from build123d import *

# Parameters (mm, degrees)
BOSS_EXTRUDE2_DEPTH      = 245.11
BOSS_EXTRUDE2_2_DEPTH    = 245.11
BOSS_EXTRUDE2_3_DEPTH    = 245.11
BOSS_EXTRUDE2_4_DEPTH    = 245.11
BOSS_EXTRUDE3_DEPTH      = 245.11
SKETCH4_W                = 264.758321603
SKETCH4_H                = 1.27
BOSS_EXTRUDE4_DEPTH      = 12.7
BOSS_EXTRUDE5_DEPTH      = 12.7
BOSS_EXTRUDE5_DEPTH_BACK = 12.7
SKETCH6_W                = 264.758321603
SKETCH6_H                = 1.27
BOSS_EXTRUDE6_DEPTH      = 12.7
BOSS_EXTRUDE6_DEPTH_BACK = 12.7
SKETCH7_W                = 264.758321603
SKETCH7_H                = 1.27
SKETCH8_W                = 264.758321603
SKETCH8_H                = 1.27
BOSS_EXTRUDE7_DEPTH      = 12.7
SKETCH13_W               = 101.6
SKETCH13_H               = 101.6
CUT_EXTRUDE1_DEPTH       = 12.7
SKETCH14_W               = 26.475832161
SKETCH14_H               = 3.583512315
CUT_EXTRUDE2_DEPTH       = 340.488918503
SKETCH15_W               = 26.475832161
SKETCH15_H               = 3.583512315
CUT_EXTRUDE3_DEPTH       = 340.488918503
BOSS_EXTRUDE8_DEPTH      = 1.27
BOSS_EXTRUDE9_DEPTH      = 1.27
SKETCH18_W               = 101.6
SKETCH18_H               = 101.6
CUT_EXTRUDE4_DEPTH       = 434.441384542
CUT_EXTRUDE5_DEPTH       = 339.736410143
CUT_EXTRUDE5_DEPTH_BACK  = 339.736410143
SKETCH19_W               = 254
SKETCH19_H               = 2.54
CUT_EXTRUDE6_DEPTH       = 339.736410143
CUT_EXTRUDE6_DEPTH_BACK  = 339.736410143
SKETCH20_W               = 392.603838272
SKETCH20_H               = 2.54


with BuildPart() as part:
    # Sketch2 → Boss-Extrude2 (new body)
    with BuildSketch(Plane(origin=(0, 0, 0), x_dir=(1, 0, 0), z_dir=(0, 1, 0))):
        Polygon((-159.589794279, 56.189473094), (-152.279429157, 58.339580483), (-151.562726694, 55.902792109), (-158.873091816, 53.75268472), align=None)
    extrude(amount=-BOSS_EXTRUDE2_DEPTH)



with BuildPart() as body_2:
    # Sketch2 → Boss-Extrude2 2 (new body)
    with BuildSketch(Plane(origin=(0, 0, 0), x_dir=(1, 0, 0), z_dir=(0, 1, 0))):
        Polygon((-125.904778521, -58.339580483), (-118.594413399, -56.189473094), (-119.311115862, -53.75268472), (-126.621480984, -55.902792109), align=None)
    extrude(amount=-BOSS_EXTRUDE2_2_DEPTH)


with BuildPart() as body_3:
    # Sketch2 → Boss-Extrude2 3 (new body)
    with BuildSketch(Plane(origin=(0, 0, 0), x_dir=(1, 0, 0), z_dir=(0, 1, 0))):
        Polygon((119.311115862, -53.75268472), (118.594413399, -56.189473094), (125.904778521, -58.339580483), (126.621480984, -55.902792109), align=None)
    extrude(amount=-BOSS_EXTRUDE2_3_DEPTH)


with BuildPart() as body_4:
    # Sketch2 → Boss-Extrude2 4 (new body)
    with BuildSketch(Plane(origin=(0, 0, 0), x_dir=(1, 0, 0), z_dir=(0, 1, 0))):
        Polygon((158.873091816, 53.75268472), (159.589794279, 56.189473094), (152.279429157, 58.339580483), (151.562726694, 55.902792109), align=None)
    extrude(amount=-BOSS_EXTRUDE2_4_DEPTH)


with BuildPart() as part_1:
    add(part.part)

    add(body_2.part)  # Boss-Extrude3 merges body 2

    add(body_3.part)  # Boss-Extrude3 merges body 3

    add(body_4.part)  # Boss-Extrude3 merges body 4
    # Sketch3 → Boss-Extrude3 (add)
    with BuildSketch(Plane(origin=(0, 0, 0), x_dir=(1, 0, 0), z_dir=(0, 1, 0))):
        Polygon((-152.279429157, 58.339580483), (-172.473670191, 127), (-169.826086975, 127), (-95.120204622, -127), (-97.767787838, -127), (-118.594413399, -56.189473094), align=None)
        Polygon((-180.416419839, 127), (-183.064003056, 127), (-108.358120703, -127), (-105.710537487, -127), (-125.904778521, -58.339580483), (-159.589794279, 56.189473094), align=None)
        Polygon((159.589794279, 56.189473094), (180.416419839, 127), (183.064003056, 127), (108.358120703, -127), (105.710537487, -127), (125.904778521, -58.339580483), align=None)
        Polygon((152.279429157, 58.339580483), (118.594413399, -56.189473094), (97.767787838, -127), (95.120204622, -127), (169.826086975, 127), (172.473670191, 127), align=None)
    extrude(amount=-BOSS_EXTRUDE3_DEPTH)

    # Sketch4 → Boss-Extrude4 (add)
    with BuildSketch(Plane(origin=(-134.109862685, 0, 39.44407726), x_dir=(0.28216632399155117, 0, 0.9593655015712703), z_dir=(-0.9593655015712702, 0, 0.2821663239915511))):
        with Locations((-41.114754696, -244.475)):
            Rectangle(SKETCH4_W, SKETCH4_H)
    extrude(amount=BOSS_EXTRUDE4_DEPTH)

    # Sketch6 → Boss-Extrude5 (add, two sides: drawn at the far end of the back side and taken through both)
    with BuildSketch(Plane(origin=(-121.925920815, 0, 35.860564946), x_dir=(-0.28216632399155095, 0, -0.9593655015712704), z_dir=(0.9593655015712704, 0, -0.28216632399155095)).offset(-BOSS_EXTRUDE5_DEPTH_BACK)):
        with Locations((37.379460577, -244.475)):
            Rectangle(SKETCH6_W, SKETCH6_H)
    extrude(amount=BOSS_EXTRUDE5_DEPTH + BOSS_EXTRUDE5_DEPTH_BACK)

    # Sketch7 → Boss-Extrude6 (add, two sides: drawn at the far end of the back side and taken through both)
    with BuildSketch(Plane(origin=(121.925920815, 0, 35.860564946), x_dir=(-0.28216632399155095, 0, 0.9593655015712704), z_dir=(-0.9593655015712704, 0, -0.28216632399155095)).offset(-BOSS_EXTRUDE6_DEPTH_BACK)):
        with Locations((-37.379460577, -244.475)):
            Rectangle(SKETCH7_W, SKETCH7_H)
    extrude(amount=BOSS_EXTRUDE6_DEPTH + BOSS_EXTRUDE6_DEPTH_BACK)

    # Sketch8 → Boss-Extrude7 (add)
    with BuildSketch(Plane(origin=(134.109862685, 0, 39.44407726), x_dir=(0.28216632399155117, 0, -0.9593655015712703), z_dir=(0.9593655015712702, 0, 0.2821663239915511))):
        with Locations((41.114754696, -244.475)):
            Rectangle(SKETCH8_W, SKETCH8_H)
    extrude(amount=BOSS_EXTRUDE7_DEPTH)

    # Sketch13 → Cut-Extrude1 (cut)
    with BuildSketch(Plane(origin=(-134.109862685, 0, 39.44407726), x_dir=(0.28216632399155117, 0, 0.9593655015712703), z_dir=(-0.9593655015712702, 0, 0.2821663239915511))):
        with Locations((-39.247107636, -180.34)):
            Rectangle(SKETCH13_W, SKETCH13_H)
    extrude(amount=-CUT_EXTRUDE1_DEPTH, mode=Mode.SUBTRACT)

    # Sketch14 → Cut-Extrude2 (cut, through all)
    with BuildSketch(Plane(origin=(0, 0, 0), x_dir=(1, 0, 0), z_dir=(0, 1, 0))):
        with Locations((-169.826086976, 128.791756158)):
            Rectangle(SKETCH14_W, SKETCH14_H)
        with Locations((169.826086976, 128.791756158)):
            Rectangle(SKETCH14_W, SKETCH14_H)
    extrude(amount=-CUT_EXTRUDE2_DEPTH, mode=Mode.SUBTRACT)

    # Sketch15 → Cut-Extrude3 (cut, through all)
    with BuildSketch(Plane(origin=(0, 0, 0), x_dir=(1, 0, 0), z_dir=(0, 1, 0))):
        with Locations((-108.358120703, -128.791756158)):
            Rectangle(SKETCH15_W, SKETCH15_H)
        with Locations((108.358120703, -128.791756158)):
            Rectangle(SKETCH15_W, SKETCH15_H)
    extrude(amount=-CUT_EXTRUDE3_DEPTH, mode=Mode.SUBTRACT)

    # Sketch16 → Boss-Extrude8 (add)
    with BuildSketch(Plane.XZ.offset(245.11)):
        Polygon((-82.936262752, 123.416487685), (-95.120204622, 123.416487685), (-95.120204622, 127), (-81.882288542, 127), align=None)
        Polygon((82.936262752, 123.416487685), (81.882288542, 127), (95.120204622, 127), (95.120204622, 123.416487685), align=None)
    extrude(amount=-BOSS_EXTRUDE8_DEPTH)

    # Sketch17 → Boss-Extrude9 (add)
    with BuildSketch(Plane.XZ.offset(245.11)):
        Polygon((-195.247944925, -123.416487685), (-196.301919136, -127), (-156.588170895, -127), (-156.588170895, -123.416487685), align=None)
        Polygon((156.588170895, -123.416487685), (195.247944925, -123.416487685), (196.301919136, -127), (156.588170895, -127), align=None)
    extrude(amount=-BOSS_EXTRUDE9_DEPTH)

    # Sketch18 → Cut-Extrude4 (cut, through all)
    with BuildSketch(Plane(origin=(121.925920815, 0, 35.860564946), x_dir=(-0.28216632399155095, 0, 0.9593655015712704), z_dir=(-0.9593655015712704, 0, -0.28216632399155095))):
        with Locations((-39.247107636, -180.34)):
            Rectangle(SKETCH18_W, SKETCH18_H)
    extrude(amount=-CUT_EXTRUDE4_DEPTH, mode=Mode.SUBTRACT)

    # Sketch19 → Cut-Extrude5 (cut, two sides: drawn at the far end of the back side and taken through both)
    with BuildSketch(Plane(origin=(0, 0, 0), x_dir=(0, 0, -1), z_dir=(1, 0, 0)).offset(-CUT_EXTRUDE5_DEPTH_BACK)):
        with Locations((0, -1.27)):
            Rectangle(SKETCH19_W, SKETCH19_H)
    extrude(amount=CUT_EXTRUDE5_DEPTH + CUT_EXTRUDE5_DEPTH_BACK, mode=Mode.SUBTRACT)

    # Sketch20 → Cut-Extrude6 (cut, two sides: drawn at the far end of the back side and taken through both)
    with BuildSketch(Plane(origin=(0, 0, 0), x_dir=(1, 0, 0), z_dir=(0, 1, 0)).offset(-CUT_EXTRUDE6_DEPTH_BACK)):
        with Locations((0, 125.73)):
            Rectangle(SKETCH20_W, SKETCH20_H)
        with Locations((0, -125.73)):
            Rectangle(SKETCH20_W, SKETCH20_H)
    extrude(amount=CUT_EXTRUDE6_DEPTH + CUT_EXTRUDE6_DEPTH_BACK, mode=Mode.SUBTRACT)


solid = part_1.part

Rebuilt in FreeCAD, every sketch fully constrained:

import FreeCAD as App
import Part
import Sketcher
from FreeCAD import Vector
Q = App.Units.Quantity


def add_polygon(sketch, points):
    """Adds a closed chain of lines whose ends are joined by coincident constraints."""
    first, n = sketch.GeometryCount, len(points)
    for a, b in zip(points, points[1:] + points[:1]):
        sketch.addGeometry(Part.LineSegment(App.Vector(*a, 0), App.Vector(*b, 0)), False)
    for i in range(n):
        sketch.addConstraint(Sketcher.Constraint("Coincident", first + i, 2, first + (i + 1) % n, 1))

doc = App.newDocument("Part")
body = doc.addObject("PartDesign::Body", "Body")

# Sketch on XZ plane
sketch1 = doc.addObject("Sketcher::SketchObject", "Sketch")
body.addObject(sketch1)
sketch1.AttachmentSupport = (doc.XZ_Plane, [""])
sketch1.MapMode = "FlatFace"
add_polygon(sketch1, [(-152.279429, -58.33958), (-159.589794, -56.189473), (-158.873092, -53.752685), (-151.562727, -55.902792)])  # lines 0-3
sketch1.addConstraint(Sketcher.Constraint("Perpendicular", 0, 1))
sketch1.addConstraint(Sketcher.Constraint("Perpendicular", 1, 2))
sketch1.addConstraint(Sketcher.Constraint("Perpendicular", 2, 3))
sketch1.addConstraint(Sketcher.Constraint("Distance", 0, Q("0.3 in")))
sketch1.addConstraint(Sketcher.Constraint("Distance", 1, Q("0.1 in")))
sketch1.addConstraint(Sketcher.Constraint("DistanceX", 1, 2, -1, 1, Q("158.873092 mm")))
sketch1.addConstraint(Sketcher.Constraint("DistanceX", 3, 2, -1, 1, Q("152.279429 mm")))
sketch1.addConstraint(Sketcher.Constraint("DistanceY", 3, 2, -1, 1, Q("58.33958 mm")))
pad1 = doc.addObject("PartDesign::Pad", "Pad")
body.addObject(pad1)
pad1.Profile = sketch1
pad1.Length = Q("9.65 in")
body2 = doc.addObject("PartDesign::Body", "Body001")

# Sketch on XZ plane
sketch2 = doc.addObject("Sketcher::SketchObject", "Sketch001")
body2.addObject(sketch2)
sketch2.AttachmentSupport = (doc.getObject("XZ_Plane001"), [""])
sketch2.MapMode = "FlatFace"
add_polygon(sketch2, [(-125.904779, 58.33958), (-118.594413, 56.189473), (-119.311116, 53.752685), (-126.621481, 55.902792)])  # lines 0-3
sketch2.addConstraint(Sketcher.Constraint("Perpendicular", 0, 1))
sketch2.addConstraint(Sketcher.Constraint("Perpendicular", 1, 2))
sketch2.addConstraint(Sketcher.Constraint("Perpendicular", 2, 3))
sketch2.addConstraint(Sketcher.Constraint("Distance", 0, Q("0.3 in")))
sketch2.addConstraint(Sketcher.Constraint("Distance", 1, Q("0.1 in")))
sketch2.addConstraint(Sketcher.Constraint("DistanceX", 2, 2, -1, 1, Q("126.621481 mm")))
sketch2.addConstraint(Sketcher.Constraint("DistanceX", 3, 2, -1, 1, Q("125.904779 mm")))
sketch2.addConstraint(Sketcher.Constraint("DistanceY", -1, 1, 3, 2, Q("58.33958 mm")))
pad2 = doc.addObject("PartDesign::Pad", "Pad001")
body2.addObject(pad2)
pad2.Profile = sketch2
pad2.Length = Q("9.65 in")
body3 = doc.addObject("PartDesign::Body", "Body002")

# Sketch on XZ plane
sketch3 = doc.addObject("Sketcher::SketchObject", "Sketch002")
body3.addObject(sketch3)
sketch3.AttachmentSupport = (doc.getObject("XZ_Plane002"), [""])
sketch3.MapMode = "FlatFace"
add_polygon(sketch3, [(119.311116, 53.752685), (118.594413, 56.189473), (125.904779, 58.33958), (126.621481, 55.902792)])  # lines 0-3
sketch3.addConstraint(Sketcher.Constraint("Perpendicular", 0, 1))
sketch3.addConstraint(Sketcher.Constraint("Perpendicular", 1, 2))
sketch3.addConstraint(Sketcher.Constraint("Perpendicular", 2, 3))
sketch3.addConstraint(Sketcher.Constraint("Distance", 0, Q("0.1 in")))
sketch3.addConstraint(Sketcher.Constraint("Distance", 1, Q("0.3 in")))
sketch3.addConstraint(Sketcher.Constraint("DistanceX", -1, 1, 1, 2, Q("125.904779 mm")))
sketch3.addConstraint(Sketcher.Constraint("DistanceY", -1, 1, 1, 2, Q("58.33958 mm")))
sketch3.addConstraint(Sketcher.Constraint("DistanceX", -1, 1, 2, 2, Q("126.621481 mm")))
pad3 = doc.addObject("PartDesign::Pad", "Pad002")
body3.addObject(pad3)
pad3.Profile = sketch3
pad3.Length = Q("9.65 in")
body4 = doc.addObject("PartDesign::Body", "Body003")

# Sketch on XZ plane
sketch4 = doc.addObject("Sketcher::SketchObject", "Sketch003")
body4.addObject(sketch4)
sketch4.AttachmentSupport = (doc.getObject("XZ_Plane003"), [""])
sketch4.MapMode = "FlatFace"
add_polygon(sketch4, [(158.873092, -53.752685), (159.589794, -56.189473), (152.279429, -58.33958), (151.562727, -55.902792)])  # lines 0-3
sketch4.addConstraint(Sketcher.Constraint("Perpendicular", 0, 1))
sketch4.addConstraint(Sketcher.Constraint("Perpendicular", 1, 2))
sketch4.addConstraint(Sketcher.Constraint("Perpendicular", 2, 3))
sketch4.addConstraint(Sketcher.Constraint("Distance", 0, Q("0.1 in")))
sketch4.addConstraint(Sketcher.Constraint("Distance", 1, Q("0.3 in")))
sketch4.addConstraint(Sketcher.Constraint("DistanceX", -1, 1, 1, 2, Q("152.279429 mm")))
sketch4.addConstraint(Sketcher.Constraint("DistanceY", 1, 2, -1, 1, Q("58.33958 mm")))
sketch4.addConstraint(Sketcher.Constraint("DistanceX", -1, 1, 3, 2, Q("158.873092 mm")))
pad4 = doc.addObject("PartDesign::Pad", "Pad003")
body4.addObject(pad4)
pad4.Profile = sketch4
pad4.Length = Q("9.65 in")
body.AllowCompound = True
doc.recompute()

boolean = doc.addObject("PartDesign::Boolean", "Boolean")
body.addObject(boolean)
boolean.Type = "Fuse"
boolean.addObjects([body2])
doc.recompute()

boolean2 = doc.addObject("PartDesign::Boolean", "Boolean001")
body.addObject(boolean2)
boolean2.Type = "Fuse"
boolean2.addObjects([body3])
doc.recompute()

boolean3 = doc.addObject("PartDesign::Boolean", "Boolean002")
body.addObject(boolean3)
boolean3.Type = "Fuse"
boolean3.addObjects([body4])

# Sketch on XZ plane
sketch5 = doc.addObject("Sketcher::SketchObject", "Sketch004")
body.addObject(sketch5)
sketch5.AttachmentSupport = (doc.XZ_Plane, [""])
sketch5.MapMode = "FlatFace"
add_polygon(sketch5, [(-172.47367, -127), (-152.279429, -58.33958), (-118.594413, 56.189473), (-97.767788, 127), (-95.120205, 127), (-169.826087, -127)])  # lines 0-5
add_polygon(sketch5, [(-180.41642, -127), (-183.064003, -127), (-108.358121, 127), (-105.710537, 127), (-125.904779, 58.33958), (-159.589794, -56.189473)])  # lines 6-11
add_polygon(sketch5, [(180.41642, -127), (159.589794, -56.189473), (125.904779, 58.33958), (105.710537, 127), (108.358121, 127), (183.064003, -127)])  # lines 12-17
add_polygon(sketch5, [(118.594413, 56.189473), (152.279429, -58.33958), (172.47367, -127), (169.826087, -127), (95.120205, 127), (97.767788, 127)])  # lines 18-23
sketch5.addConstraint(Sketcher.Constraint("Horizontal", 3))
sketch5.addConstraint(Sketcher.Constraint("Horizontal", 5))
sketch5.addConstraint(Sketcher.Constraint("Horizontal", 6))
sketch5.addConstraint(Sketcher.Constraint("Horizontal", 8))
sketch5.addConstraint(Sketcher.Constraint("Horizontal", 15))
sketch5.addConstraint(Sketcher.Constraint("Horizontal", 17))
sketch5.addConstraint(Sketcher.Constraint("Horizontal", 20))
sketch5.addConstraint(Sketcher.Constraint("Horizontal", 22))
sketch5.addConstraint(Sketcher.Constraint("Symmetric", 10, 2, 12, 2, -2))
sketch5.addConstraint(Sketcher.Constraint("Symmetric", 9, 2, 13, 2, -2))
sketch5.addConstraint(Sketcher.Constraint("Symmetric", 8, 2, 14, 2, -2))
sketch5.addConstraint(Sketcher.Constraint("Symmetric", 6, 2, 16, 2, -2))
sketch5.addConstraint(Sketcher.Constraint("Symmetric", 0, 2, 18, 2, -2))
sketch5.addConstraint(Sketcher.Constraint("Symmetric", 5, 2, 19, 2, -2))
sketch5.addConstraint(Sketcher.Constraint("Symmetric", 3, 2, 21, 2, -2))
sketch5.addConstraint(Sketcher.Constraint("Symmetric", 1, 2, 23, 2, -2))
sketch5.addConstraint(Sketcher.Constraint("Parallel", 0, 1))
sketch5.addConstraint(Sketcher.Constraint("Parallel", 1, 2))
sketch5.addConstraint(Sketcher.Constraint("Parallel", 2, 4))
sketch5.addConstraint(Sketcher.Constraint("Parallel", 4, 7))
sketch5.addConstraint(Sketcher.Constraint("Parallel", 7, 9))
sketch5.addConstraint(Sketcher.Constraint("Parallel", 9, 10))
sketch5.addConstraint(Sketcher.Constraint("Parallel", 10, 11))
sketch5.addConstraint(Sketcher.Constraint("Parallel", 12, 13))
sketch5.addConstraint(Sketcher.Constraint("Parallel", 14, 16))
sketch5.addConstraint(Sketcher.Constraint("Parallel", 19, 21))
sketch5.addConstraint(Sketcher.Constraint("Parallel", 21, 23))
sketch5.addConstraint(Sketcher.Constraint("Horizontal", 5, 2, 6, 2))
sketch5.addConstraint(Sketcher.Constraint("Horizontal", 3, 2, 7, 2))
sketch5.addConstraint(Sketcher.Constraint("Equal", 5, 6))
sketch5.addConstraint(Sketcher.Constraint("Equal", 0, 9))
sketch5.addConstraint(Sketcher.Constraint("Equal", 1, 10))
sketch5.addConstraint(Sketcher.Constraint("DistanceY", -1, 1, 2, 2, Q("5 in")))
sketch5.addConstraint(Sketcher.Constraint("DistanceY", 4, 2, -1, 1, Q("5 in")))
sketch5.addConstraint(Sketcher.Constraint("Distance", 1, Q("4.7 in")))
sketch5.addConstraint(Sketcher.Constraint("DistanceX", 4, 2, 2, 2, Q("72.058299 mm")))
sketch5.addConstraint(Sketcher.Constraint("DistanceX", 3, 2, 12, 2, Q("254.709999 mm")))
sketch5.addConstraint(Sketcher.Constraint("DistanceX", 7, 2, 13, 2, Q("234.262899 mm")))
sketch5.addConstraint(Sketcher.Constraint("Distance", 2, Q("73.809749 mm")))
sketch5.addConstraint(Sketcher.Constraint("Distance", 4, Q("264.758322 mm")))
pad5 = doc.addObject("PartDesign::Pad", "Pad004")
body.addObject(pad5)
pad5.Profile = sketch5
pad5.Length = Q("9.65 in")

# Sketch on an angled plane
sketch6 = doc.addObject("Sketcher::SketchObject", "Sketch005")
body.addObject(sketch6)
sketch6.Placement = App.Placement(Vector(-134.109863, 0, 39.444077), App.Rotation(Vector(0.282166324, 0, 0.959365502), Vector(0, 1.000000001, 0), Vector(-0.959365502, 0, 0.282166324), "ZXY"))
add_polygon(sketch6, [(-173.493916, -243.84), (-173.493916, -245.11), (91.264406, -245.11), (91.264406, -243.84)])  # lines 0-3
sketch6.addConstraint(Sketcher.Constraint("Vertical", 0))
sketch6.addConstraint(Sketcher.Constraint("Horizontal", 1))
sketch6.addConstraint(Sketcher.Constraint("Vertical", 2))
sketch6.addConstraint(Sketcher.Constraint("Horizontal", 3))
sketch6.addConstraint(Sketcher.Constraint("DistanceY", 0, 2, 0, 1, Q("0.05 in")))
sketch6.addConstraint(Sketcher.Constraint("DistanceY", 2, 2, -1, 1, Q("9.6 in")))
sketch6.addConstraint(Sketcher.Constraint("DistanceX", 1, 1, 1, 2, Q("264.758322 mm")))
sketch6.addConstraint(Sketcher.Constraint("DistanceX", 0, 2, -1, 1, Q("173.493916 mm")))
pad6 = doc.addObject("PartDesign::Pad", "Pad005")
body.addObject(pad6)
pad6.Profile = sketch6
pad6.Length = Q("0.5 in")

# Sketch on an angled plane
sketch7 = doc.addObject("Sketcher::SketchObject", "Sketch006")
body.addObject(sketch7)
sketch7.Placement = App.Placement(Vector(-121.925921, 0, 35.860565), App.Rotation(Vector(-0.282166324, 0, -0.959365502), Vector(0, 1.000000001, 0), Vector(0.959365502, 0, -0.282166324), "ZXY"))
add_polygon(sketch7, [(-94.9997, -243.84), (-94.9997, -245.11), (169.758622, -245.11), (169.758622, -243.84)])  # lines 0-3
sketch7.addConstraint(Sketcher.Constraint("Vertical", 0))
sketch7.addConstraint(Sketcher.Constraint("Horizontal", 1))
sketch7.addConstraint(Sketcher.Constraint("Vertical", 2))
sketch7.addConstraint(Sketcher.Constraint("Horizontal", 3))
sketch7.addConstraint(Sketcher.Constraint("DistanceY", 0, 2, 0, 1, Q("0.05 in")))
sketch7.addConstraint(Sketcher.Constraint("DistanceY", 2, 2, -1, 1, Q("9.6 in")))
sketch7.addConstraint(Sketcher.Constraint("DistanceX", 1, 1, 1, 2, Q("264.758322 mm")))
sketch7.addConstraint(Sketcher.Constraint("DistanceX", 0, 2, -1, 1, Q("94.9997 mm")))
pad7 = doc.addObject("PartDesign::Pad", "Pad006")
body.addObject(pad7)
pad7.Profile = sketch7
pad7.Type = "TwoLengths"
pad7.Length = Q("0.5 in")
pad7.Length2 = Q("0.5 in")

# Sketch on an angled plane
sketch8 = doc.addObject("Sketcher::SketchObject", "Sketch007")
body.addObject(sketch8)
sketch8.Placement = App.Placement(Vector(121.925921, 0, 35.860565), App.Rotation(Vector(-0.282166324, 0, 0.959365502), Vector(0, 1.000000001, 0), Vector(-0.959365502, 0, -0.282166324), "ZXY"))
add_polygon(sketch8, [(-169.758622, -243.84), (-169.758622, -245.11), (94.9997, -245.11), (94.9997, -243.84)])  # lines 0-3
sketch8.addConstraint(Sketcher.Constraint("Vertical", 0))
sketch8.addConstraint(Sketcher.Constraint("Horizontal", 1))
sketch8.addConstraint(Sketcher.Constraint("Vertical", 2))
sketch8.addConstraint(Sketcher.Constraint("Horizontal", 3))
sketch8.addConstraint(Sketcher.Constraint("DistanceY", 0, 2, 0, 1, Q("0.05 in")))
sketch8.addConstraint(Sketcher.Constraint("DistanceY", 2, 2, -1, 1, Q("9.6 in")))
sketch8.addConstraint(Sketcher.Constraint("DistanceX", 1, 1, 1, 2, Q("264.758322 mm")))
sketch8.addConstraint(Sketcher.Constraint("DistanceX", -1, 1, 1, 2, Q("94.9997 mm")))
pad8 = doc.addObject("PartDesign::Pad", "Pad007")
body.addObject(pad8)
pad8.Profile = sketch8
pad8.Type = "TwoLengths"
pad8.Length = Q("0.5 in")
pad8.Length2 = Q("0.5 in")

# Sketch on an angled plane
sketch9 = doc.addObject("Sketcher::SketchObject", "Sketch008")
body.addObject(sketch9)
sketch9.Placement = App.Placement(Vector(134.109863, 0, 39.444077), App.Rotation(Vector(0.282166324, 0, -0.959365502), Vector(0, 1.000000001, 0), Vector(0.959365502, 0, 0.282166324), "ZXY"))
add_polygon(sketch9, [(-91.264406, -243.84), (-91.264406, -245.11), (173.493916, -245.11), (173.493916, -243.84)])  # lines 0-3
sketch9.addConstraint(Sketcher.Constraint("Vertical", 0))
sketch9.addConstraint(Sketcher.Constraint("Horizontal", 1))
sketch9.addConstraint(Sketcher.Constraint("Vertical", 2))
sketch9.addConstraint(Sketcher.Constraint("Horizontal", 3))
sketch9.addConstraint(Sketcher.Constraint("DistanceY", 0, 2, 0, 1, Q("0.05 in")))
sketch9.addConstraint(Sketcher.Constraint("DistanceY", 2, 2, -1, 1, Q("9.6 in")))
sketch9.addConstraint(Sketcher.Constraint("DistanceX", 1, 1, 1, 2, Q("264.758322 mm")))
sketch9.addConstraint(Sketcher.Constraint("DistanceX", 0, 2, -1, 1, Q("91.264406 mm")))
pad9 = doc.addObject("PartDesign::Pad", "Pad008")
body.addObject(pad9)
pad9.Profile = sketch9
pad9.Length = Q("0.5 in")

# Sketch on an angled plane
sketch10 = doc.addObject("Sketcher::SketchObject", "Sketch009")
body.addObject(sketch10)
sketch10.Placement = App.Placement(Vector(-134.109863, 0, 39.444077), App.Rotation(Vector(0.282166324, 0, 0.959365502), Vector(0, 1.000000001, 0), Vector(-0.959365502, 0, 0.282166324), "ZXY"))
add_polygon(sketch10, [(-90.047108, -129.54), (-90.047108, -231.14), (11.552892, -231.14), (11.552892, -129.54)])  # lines 0-3
sketch10.addConstraint(Sketcher.Constraint("Vertical", 0))
sketch10.addConstraint(Sketcher.Constraint("Horizontal", 1))
sketch10.addConstraint(Sketcher.Constraint("Vertical", 2))
sketch10.addConstraint(Sketcher.Constraint("Horizontal", 3))
sketch10.addConstraint(Sketcher.Constraint("Equal", 3, 0))
sketch10.addConstraint(Sketcher.Constraint("DistanceX", 1, 1, 1, 2, Q("4 in")))
sketch10.addConstraint(Sketcher.Constraint("DistanceY", 0, 2, -1, 1, Q("9.1 in")))
sketch10.addConstraint(Sketcher.Constraint("DistanceX", 0, 2, -1, 1, Q("90.047108 mm")))
pocket1 = doc.addObject("PartDesign::Pocket", "Pocket")
body.addObject(pocket1)
pocket1.Profile = sketch10
pocket1.Length = Q("0.5 in")

# Sketch on XZ plane
sketch11 = doc.addObject("Sketcher::SketchObject", "Sketch010")
body.addObject(sketch11)
sketch11.AttachmentSupport = (doc.XZ_Plane, [""])
sketch11.MapMode = "FlatFace"
add_polygon(sketch11, [(-183.064003, -130.583512), (-183.064003, -127), (-156.588171, -127), (-156.588171, -130.583512)])  # lines 0-3
add_polygon(sketch11, [(156.588171, -130.583512), (156.588171, -127), (183.064003, -127), (183.064003, -130.583512)])  # lines 4-7
sketch11.addConstraint(Sketcher.Constraint("Vertical", 0))
sketch11.addConstraint(Sketcher.Constraint("Horizontal", 1))
sketch11.addConstraint(Sketcher.Constraint("Vertical", 2))
sketch11.addConstraint(Sketcher.Constraint("Horizontal", 3))
sketch11.addConstraint(Sketcher.Constraint("Vertical", 4))
sketch11.addConstraint(Sketcher.Constraint("Horizontal", 5))
sketch11.addConstraint(Sketcher.Constraint("Vertical", 6))
sketch11.addConstraint(Sketcher.Constraint("Horizontal", 7))
sketch11.addConstraint(Sketcher.Constraint("Symmetric", 1, 2, 4, 2, -2))
sketch11.addConstraint(Sketcher.Constraint("Symmetric", 3, 2, 6, 2, -2))
sketch11.addConstraint(Sketcher.Constraint("DistanceY", 0, 2, -1, 1, Q("5 in")))
sketch11.addConstraint(Sketcher.Constraint("DistanceX", 1, 1, 1, 2, Q("26.475832 mm")))
sketch11.addConstraint(Sketcher.Constraint("DistanceY", 0, 1, 0, 2, Q("3.583512 mm")))
sketch11.addConstraint(Sketcher.Constraint("DistanceX", 1, 2, -1, 1, Q("156.588171 mm")))
pocket2 = doc.addObject("PartDesign::Pocket", "Pocket001")
body.addObject(pocket2)
pocket2.Profile = sketch11
pocket2.Type = "ThroughAll"
pocket2.Reversed = True

# Sketch on XZ plane
sketch12 = doc.addObject("Sketcher::SketchObject", "Sketch011")
body.addObject(sketch12)
sketch12.AttachmentSupport = (doc.XZ_Plane, [""])
sketch12.MapMode = "FlatFace"
add_polygon(sketch12, [(-121.596037, 127), (-121.596037, 130.583512), (-95.120205, 130.583512), (-95.120205, 127)])  # lines 0-3
add_polygon(sketch12, [(95.120205, 127), (95.120205, 130.583512), (121.596037, 130.583512), (121.596037, 127)])  # lines 4-7
sketch12.addConstraint(Sketcher.Constraint("Vertical", 0))
sketch12.addConstraint(Sketcher.Constraint("Horizontal", 1))
sketch12.addConstraint(Sketcher.Constraint("Vertical", 2))
sketch12.addConstraint(Sketcher.Constraint("Horizontal", 3))
sketch12.addConstraint(Sketcher.Constraint("Vertical", 4))
sketch12.addConstraint(Sketcher.Constraint("Horizontal", 5))
sketch12.addConstraint(Sketcher.Constraint("Vertical", 6))
sketch12.addConstraint(Sketcher.Constraint("Horizontal", 7))
sketch12.addConstraint(Sketcher.Constraint("Symmetric", 1, 2, 4, 2, -2))
sketch12.addConstraint(Sketcher.Constraint("Symmetric", 3, 2, 6, 2, -2))
sketch12.addConstraint(Sketcher.Constraint("DistanceY", -1, 1, 2, 2, Q("5 in")))
sketch12.addConstraint(Sketcher.Constraint("DistanceX", 1, 1, 1, 2, Q("26.475832 mm")))
sketch12.addConstraint(Sketcher.Constraint("DistanceY", 0, 1, 0, 2, Q("3.583512 mm")))
sketch12.addConstraint(Sketcher.Constraint("DistanceX", 1, 2, 4, 2, Q("190.240409 mm")))
pocket3 = doc.addObject("PartDesign::Pocket", "Pocket002")
body.addObject(pocket3)
pocket3.Profile = sketch12
pocket3.Type = "ThroughAll"
pocket3.Reversed = True

# Sketch on XZ plane
sketch13 = doc.addObject("Sketcher::SketchObject", "Sketch012")
body.addObject(sketch13)
sketch13.AttachmentSupport = (doc.XZ_Plane, [""])
sketch13.MapMode = "FlatFace"
sketch13.AttachmentOffset = App.Placement(Vector(0, 0, 9.65 * 25.4), App.Rotation())
add_polygon(sketch13, [(-95.120205, 123.416488), (-82.936263, 123.416488), (-81.882289, 127), (-95.120205, 127)])  # lines 0-3
add_polygon(sketch13, [(81.882289, 127), (82.936263, 123.416488), (95.120205, 123.416488), (95.120205, 127)])  # lines 4-7
sketch13.addConstraint(Sketcher.Constraint("Horizontal", 0))
sketch13.addConstraint(Sketcher.Constraint("Horizontal", 2))
sketch13.addConstraint(Sketcher.Constraint("Vertical", 3))
sketch13.addConstraint(Sketcher.Constraint("Horizontal", 5))
sketch13.addConstraint(Sketcher.Constraint("Vertical", 6))
sketch13.addConstraint(Sketcher.Constraint("Horizontal", 7))
sketch13.addConstraint(Sketcher.Constraint("Symmetric", 0, 2, 4, 2, -2))
sketch13.addConstraint(Sketcher.Constraint("Symmetric", 2, 2, 6, 2, -2))
sketch13.addConstraint(Sketcher.Constraint("Equal", 2, 7))
sketch13.addConstraint(Sketcher.Constraint("DistanceY", -1, 1, 1, 2, Q("5 in")))
sketch13.addConstraint(Sketcher.Constraint("DistanceX", 0, 1, 0, 2, Q("12.183942 mm")))
sketch13.addConstraint(Sketcher.Constraint("DistanceX", 2, 2, 2, 1, Q("13.237916 mm")))
sketch13.addConstraint(Sketcher.Constraint("DistanceY", 3, 2, 3, 1, Q("3.583512 mm")))
sketch13.addConstraint(Sketcher.Constraint("DistanceX", 1, 2, -1, 1, Q("81.882289 mm")))
pad10 = doc.addObject("PartDesign::Pad", "Pad009")
body.addObject(pad10)
pad10.Profile = sketch13
pad10.Length = Q("0.05 in")
pad10.Reversed = True

# Sketch on XZ plane
sketch14 = doc.addObject("Sketcher::SketchObject", "Sketch013")
body.addObject(sketch14)
sketch14.AttachmentSupport = (doc.XZ_Plane, [""])
sketch14.MapMode = "FlatFace"
sketch14.AttachmentOffset = App.Placement(Vector(0, 0, 9.65 * 25.4), App.Rotation())
add_polygon(sketch14, [(-195.247945, -123.416488), (-196.301919, -127), (-156.588171, -127), (-156.588171, -123.416488)])  # lines 0-3
add_polygon(sketch14, [(195.247945, -123.416488), (156.588171, -123.416488), (156.588171, -127), (196.301919, -127)])  # lines 4-7
sketch14.addConstraint(Sketcher.Constraint("Horizontal", 1))
sketch14.addConstraint(Sketcher.Constraint("Vertical", 2))
sketch14.addConstraint(Sketcher.Constraint("Horizontal", 3))
sketch14.addConstraint(Sketcher.Constraint("Horizontal", 4))
sketch14.addConstraint(Sketcher.Constraint("Vertical", 5))
sketch14.addConstraint(Sketcher.Constraint("Horizontal", 6))
sketch14.addConstraint(Sketcher.Constraint("Symmetric", 2, 2, 4, 2, -2))
sketch14.addConstraint(Sketcher.Constraint("Symmetric", 0, 2, 6, 2, -2))
sketch14.addConstraint(Sketcher.Constraint("Equal", 3, 4))
sketch14.addConstraint(Sketcher.Constraint("DistanceY", 0, 2, -1, 1, Q("5 in")))
sketch14.addConstraint(Sketcher.Constraint("DistanceX", 1, 1, 1, 2, Q("39.713748 mm")))
sketch14.addConstraint(Sketcher.Constraint("DistanceX", 3, 2, 3, 1, Q("38.659774 mm")))
sketch14.addConstraint(Sketcher.Constraint("DistanceY", 2, 1, 2, 2, Q("3.583512 mm")))
sketch14.addConstraint(Sketcher.Constraint("DistanceX", 0, 2, -1, 1, Q("196.301919 mm")))
pad11 = doc.addObject("PartDesign::Pad", "Pad010")
body.addObject(pad11)
pad11.Profile = sketch14
pad11.Length = Q("0.05 in")
pad11.Reversed = True

# Sketch on an angled plane
sketch15 = doc.addObject("Sketcher::SketchObject", "Sketch014")
body.addObject(sketch15)
sketch15.Placement = App.Placement(Vector(121.925921, 0, 35.860565), App.Rotation(Vector(-0.282166324, 0, 0.959365502), Vector(0, 1.000000001, 0), Vector(-0.959365502, 0, -0.282166324), "ZXY"))
add_polygon(sketch15, [(-90.047108, -129.54), (-90.047108, -231.14), (11.552892, -231.14), (11.552892, -129.54)])  # lines 0-3
sketch15.addConstraint(Sketcher.Constraint("Vertical", 0))
sketch15.addConstraint(Sketcher.Constraint("Horizontal", 1))
sketch15.addConstraint(Sketcher.Constraint("Vertical", 2))
sketch15.addConstraint(Sketcher.Constraint("Horizontal", 3))
sketch15.addConstraint(Sketcher.Constraint("Equal", 3, 0))
sketch15.addConstraint(Sketcher.Constraint("DistanceX", 1, 1, 1, 2, Q("4 in")))
sketch15.addConstraint(Sketcher.Constraint("DistanceY", 0, 2, -1, 1, Q("9.1 in")))
sketch15.addConstraint(Sketcher.Constraint("DistanceX", 0, 2, -1, 1, Q("90.047108 mm")))
pocket4 = doc.addObject("PartDesign::Pocket", "Pocket003")
body.addObject(pocket4)
pocket4.Profile = sketch15
pocket4.Type = "ThroughAll"

# Sketch on YZ plane
sketch16 = doc.addObject("Sketcher::SketchObject", "Sketch015")
body.addObject(sketch16)
sketch16.AttachmentSupport = (doc.YZ_Plane, [""])
sketch16.MapMode = "FlatFace"
add_polygon(sketch16, [(0, 127), (-2.54, 127), (-2.54, -127), (0, -127)])  # lines 0-3
sketch16.addConstraint(Sketcher.Constraint("Horizontal", 0))
sketch16.addConstraint(Sketcher.Constraint("Vertical", 1))
sketch16.addConstraint(Sketcher.Constraint("Horizontal", 2))
sketch16.addConstraint(Sketcher.Constraint("Vertical", 3))
sketch16.addConstraint(Sketcher.Constraint("Symmetric", 2, 2, 3, 2, -1, 1))
sketch16.addConstraint(Sketcher.Constraint("DistanceY", 1, 2, 1, 1, Q("10 in")))
sketch16.addConstraint(Sketcher.Constraint("DistanceX", 0, 2, 0, 1, Q("0.1 in")))
pocket5 = doc.addObject("PartDesign::Pocket", "Pocket004")
body.addObject(pocket5)
pocket5.Profile = sketch16
pocket5.Type = "ThroughAll"
pocket5.Midplane = True

# Sketch on XZ plane
sketch17 = doc.addObject("Sketcher::SketchObject", "Sketch016")
body.addObject(sketch17)
sketch17.AttachmentSupport = (doc.XZ_Plane, [""])
sketch17.MapMode = "FlatFace"
add_polygon(sketch17, [(-196.301919, -127), (-196.301919, -124.46), (196.301919, -124.46), (196.301919, -127)])  # lines 0-3
add_polygon(sketch17, [(-196.301919, 124.46), (-196.301919, 127), (196.301919, 127), (196.301919, 124.46)])  # lines 4-7
sketch17.addConstraint(Sketcher.Constraint("Vertical", 0))
sketch17.addConstraint(Sketcher.Constraint("Horizontal", 1))
sketch17.addConstraint(Sketcher.Constraint("Vertical", 2))
sketch17.addConstraint(Sketcher.Constraint("Horizontal", 3))
sketch17.addConstraint(Sketcher.Constraint("Vertical", 4))
sketch17.addConstraint(Sketcher.Constraint("Horizontal", 5))
sketch17.addConstraint(Sketcher.Constraint("Vertical", 6))
sketch17.addConstraint(Sketcher.Constraint("Horizontal", 7))
sketch17.addConstraint(Sketcher.Constraint("Symmetric", 2, 2, 4, 2, -1, 1))
sketch17.addConstraint(Sketcher.Constraint("Symmetric", 0, 2, 6, 2, -1, 1))
sketch17.addConstraint(Sketcher.Constraint("Vertical", 3, 2, 4, 2))
sketch17.addConstraint(Sketcher.Constraint("DistanceY", 0, 1, 0, 2, Q("0.1 in")))
sketch17.addConstraint(Sketcher.Constraint("DistanceY", 2, 2, -1, 1, Q("5 in")))
sketch17.addConstraint(Sketcher.Constraint("DistanceX", 1, 1, 1, 2, Q("392.603838 mm")))
pocket6 = doc.addObject("PartDesign::Pocket", "Pocket005")
body.addObject(pocket6)
pocket6.Profile = sketch17
pocket6.Type = "ThroughAll"
pocket6.Midplane = True

doc.recompute()
